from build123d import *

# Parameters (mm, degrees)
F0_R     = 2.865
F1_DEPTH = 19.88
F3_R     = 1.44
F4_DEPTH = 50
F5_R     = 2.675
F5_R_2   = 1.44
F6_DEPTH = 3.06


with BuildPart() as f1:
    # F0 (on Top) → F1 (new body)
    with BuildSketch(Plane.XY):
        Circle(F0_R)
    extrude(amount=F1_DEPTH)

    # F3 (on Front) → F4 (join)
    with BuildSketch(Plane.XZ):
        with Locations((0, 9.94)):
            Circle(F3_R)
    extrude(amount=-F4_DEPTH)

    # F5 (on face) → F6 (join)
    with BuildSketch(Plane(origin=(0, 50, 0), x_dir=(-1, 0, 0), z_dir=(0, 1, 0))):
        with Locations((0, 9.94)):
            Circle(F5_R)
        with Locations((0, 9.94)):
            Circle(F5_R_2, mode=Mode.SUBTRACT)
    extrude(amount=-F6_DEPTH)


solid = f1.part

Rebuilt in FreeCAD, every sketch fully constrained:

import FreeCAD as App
import Part
import Sketcher
from FreeCAD import Vector
Q = App.Units.Quantity

doc = App.newDocument("Part")
body = doc.addObject("PartDesign::Body", "Body")

sketch1 = body.newObject("Sketcher::SketchObject", "Sketch")
sketch1.AttachmentSupport = (doc.getObject("XY_Plane"), [""])
sketch1.MapMode = "FlatFace"
sketch1.addGeometry(Part.Circle(Vector(0, 0, 0), Vector(0, 0, 1), 2.865), False)
sketch1.addConstraint([
    Sketcher.Constraint("Coincident", 0, 3, -1, 1),
    Sketcher.Constraint("Diameter", 0, Q("5.73 mm")),
])
pad1 = body.newObject("PartDesign::Pad", "Pad")
pad1.Profile = sketch1
pad1.Length = 19.88

sketch2 = body.newObject("Sketcher::SketchObject", "Sketch001")
sketch2.AttachmentSupport = (doc.getObject("XZ_Plane"), [""])
sketch2.MapMode = "FlatFace"
sketch2.addGeometry(Part.Circle(Vector(0, 9.94, 0), Vector(0, 0, 1), 1.44), False)
sketch2.addConstraint([
    Sketcher.Constraint("PointOnObject", 0, 3, -2),
    Sketcher.Constraint("Diameter", 0, Q("2.88 mm")),
    Sketcher.Constraint("DistanceY", -1, 1, 0, 3, Q("9.94 mm")),
])
pad2 = body.newObject("PartDesign::Pad", "Pad001")
pad2.Profile = sketch2
pad2.Length = 50
pad2.Reversed = True

sketch3 = body.newObject("Sketcher::SketchObject", "Sketch002")
sketch3.AttachmentSupport = (doc.getObject("XZ_Plane"), [""])
sketch3.MapMode = "FlatFace"
sketch3.AttachmentOffset = App.Placement(Vector(0, 0, -50), App.Rotation())
sketch3.addGeometry([
    Part.Circle(Vector(0, 9.94, 0), Vector(0, 0, 1), 2.675),
    Part.Circle(Vector(0, 9.94, 0), Vector(0, 0, 1), 1.44),
], False)
sketch3.addConstraint([
    Sketcher.Constraint("Coincident", 1, 3, 0, 3),
    Sketcher.Constraint("PointOnObject", 0, 3, -2),
    Sketcher.Constraint("Diameter", 0, Q("5.35 mm")),
    Sketcher.Constraint("Diameter", 1, Q("2.88 mm")),
    Sketcher.Constraint("DistanceY", -1, 1, 0, 3, Q("9.94 mm")),
])
pad3 = body.newObject("PartDesign::Pad", "Pad002")
pad3.Profile = sketch3
pad3.Length = 3.06

doc.recompute()
